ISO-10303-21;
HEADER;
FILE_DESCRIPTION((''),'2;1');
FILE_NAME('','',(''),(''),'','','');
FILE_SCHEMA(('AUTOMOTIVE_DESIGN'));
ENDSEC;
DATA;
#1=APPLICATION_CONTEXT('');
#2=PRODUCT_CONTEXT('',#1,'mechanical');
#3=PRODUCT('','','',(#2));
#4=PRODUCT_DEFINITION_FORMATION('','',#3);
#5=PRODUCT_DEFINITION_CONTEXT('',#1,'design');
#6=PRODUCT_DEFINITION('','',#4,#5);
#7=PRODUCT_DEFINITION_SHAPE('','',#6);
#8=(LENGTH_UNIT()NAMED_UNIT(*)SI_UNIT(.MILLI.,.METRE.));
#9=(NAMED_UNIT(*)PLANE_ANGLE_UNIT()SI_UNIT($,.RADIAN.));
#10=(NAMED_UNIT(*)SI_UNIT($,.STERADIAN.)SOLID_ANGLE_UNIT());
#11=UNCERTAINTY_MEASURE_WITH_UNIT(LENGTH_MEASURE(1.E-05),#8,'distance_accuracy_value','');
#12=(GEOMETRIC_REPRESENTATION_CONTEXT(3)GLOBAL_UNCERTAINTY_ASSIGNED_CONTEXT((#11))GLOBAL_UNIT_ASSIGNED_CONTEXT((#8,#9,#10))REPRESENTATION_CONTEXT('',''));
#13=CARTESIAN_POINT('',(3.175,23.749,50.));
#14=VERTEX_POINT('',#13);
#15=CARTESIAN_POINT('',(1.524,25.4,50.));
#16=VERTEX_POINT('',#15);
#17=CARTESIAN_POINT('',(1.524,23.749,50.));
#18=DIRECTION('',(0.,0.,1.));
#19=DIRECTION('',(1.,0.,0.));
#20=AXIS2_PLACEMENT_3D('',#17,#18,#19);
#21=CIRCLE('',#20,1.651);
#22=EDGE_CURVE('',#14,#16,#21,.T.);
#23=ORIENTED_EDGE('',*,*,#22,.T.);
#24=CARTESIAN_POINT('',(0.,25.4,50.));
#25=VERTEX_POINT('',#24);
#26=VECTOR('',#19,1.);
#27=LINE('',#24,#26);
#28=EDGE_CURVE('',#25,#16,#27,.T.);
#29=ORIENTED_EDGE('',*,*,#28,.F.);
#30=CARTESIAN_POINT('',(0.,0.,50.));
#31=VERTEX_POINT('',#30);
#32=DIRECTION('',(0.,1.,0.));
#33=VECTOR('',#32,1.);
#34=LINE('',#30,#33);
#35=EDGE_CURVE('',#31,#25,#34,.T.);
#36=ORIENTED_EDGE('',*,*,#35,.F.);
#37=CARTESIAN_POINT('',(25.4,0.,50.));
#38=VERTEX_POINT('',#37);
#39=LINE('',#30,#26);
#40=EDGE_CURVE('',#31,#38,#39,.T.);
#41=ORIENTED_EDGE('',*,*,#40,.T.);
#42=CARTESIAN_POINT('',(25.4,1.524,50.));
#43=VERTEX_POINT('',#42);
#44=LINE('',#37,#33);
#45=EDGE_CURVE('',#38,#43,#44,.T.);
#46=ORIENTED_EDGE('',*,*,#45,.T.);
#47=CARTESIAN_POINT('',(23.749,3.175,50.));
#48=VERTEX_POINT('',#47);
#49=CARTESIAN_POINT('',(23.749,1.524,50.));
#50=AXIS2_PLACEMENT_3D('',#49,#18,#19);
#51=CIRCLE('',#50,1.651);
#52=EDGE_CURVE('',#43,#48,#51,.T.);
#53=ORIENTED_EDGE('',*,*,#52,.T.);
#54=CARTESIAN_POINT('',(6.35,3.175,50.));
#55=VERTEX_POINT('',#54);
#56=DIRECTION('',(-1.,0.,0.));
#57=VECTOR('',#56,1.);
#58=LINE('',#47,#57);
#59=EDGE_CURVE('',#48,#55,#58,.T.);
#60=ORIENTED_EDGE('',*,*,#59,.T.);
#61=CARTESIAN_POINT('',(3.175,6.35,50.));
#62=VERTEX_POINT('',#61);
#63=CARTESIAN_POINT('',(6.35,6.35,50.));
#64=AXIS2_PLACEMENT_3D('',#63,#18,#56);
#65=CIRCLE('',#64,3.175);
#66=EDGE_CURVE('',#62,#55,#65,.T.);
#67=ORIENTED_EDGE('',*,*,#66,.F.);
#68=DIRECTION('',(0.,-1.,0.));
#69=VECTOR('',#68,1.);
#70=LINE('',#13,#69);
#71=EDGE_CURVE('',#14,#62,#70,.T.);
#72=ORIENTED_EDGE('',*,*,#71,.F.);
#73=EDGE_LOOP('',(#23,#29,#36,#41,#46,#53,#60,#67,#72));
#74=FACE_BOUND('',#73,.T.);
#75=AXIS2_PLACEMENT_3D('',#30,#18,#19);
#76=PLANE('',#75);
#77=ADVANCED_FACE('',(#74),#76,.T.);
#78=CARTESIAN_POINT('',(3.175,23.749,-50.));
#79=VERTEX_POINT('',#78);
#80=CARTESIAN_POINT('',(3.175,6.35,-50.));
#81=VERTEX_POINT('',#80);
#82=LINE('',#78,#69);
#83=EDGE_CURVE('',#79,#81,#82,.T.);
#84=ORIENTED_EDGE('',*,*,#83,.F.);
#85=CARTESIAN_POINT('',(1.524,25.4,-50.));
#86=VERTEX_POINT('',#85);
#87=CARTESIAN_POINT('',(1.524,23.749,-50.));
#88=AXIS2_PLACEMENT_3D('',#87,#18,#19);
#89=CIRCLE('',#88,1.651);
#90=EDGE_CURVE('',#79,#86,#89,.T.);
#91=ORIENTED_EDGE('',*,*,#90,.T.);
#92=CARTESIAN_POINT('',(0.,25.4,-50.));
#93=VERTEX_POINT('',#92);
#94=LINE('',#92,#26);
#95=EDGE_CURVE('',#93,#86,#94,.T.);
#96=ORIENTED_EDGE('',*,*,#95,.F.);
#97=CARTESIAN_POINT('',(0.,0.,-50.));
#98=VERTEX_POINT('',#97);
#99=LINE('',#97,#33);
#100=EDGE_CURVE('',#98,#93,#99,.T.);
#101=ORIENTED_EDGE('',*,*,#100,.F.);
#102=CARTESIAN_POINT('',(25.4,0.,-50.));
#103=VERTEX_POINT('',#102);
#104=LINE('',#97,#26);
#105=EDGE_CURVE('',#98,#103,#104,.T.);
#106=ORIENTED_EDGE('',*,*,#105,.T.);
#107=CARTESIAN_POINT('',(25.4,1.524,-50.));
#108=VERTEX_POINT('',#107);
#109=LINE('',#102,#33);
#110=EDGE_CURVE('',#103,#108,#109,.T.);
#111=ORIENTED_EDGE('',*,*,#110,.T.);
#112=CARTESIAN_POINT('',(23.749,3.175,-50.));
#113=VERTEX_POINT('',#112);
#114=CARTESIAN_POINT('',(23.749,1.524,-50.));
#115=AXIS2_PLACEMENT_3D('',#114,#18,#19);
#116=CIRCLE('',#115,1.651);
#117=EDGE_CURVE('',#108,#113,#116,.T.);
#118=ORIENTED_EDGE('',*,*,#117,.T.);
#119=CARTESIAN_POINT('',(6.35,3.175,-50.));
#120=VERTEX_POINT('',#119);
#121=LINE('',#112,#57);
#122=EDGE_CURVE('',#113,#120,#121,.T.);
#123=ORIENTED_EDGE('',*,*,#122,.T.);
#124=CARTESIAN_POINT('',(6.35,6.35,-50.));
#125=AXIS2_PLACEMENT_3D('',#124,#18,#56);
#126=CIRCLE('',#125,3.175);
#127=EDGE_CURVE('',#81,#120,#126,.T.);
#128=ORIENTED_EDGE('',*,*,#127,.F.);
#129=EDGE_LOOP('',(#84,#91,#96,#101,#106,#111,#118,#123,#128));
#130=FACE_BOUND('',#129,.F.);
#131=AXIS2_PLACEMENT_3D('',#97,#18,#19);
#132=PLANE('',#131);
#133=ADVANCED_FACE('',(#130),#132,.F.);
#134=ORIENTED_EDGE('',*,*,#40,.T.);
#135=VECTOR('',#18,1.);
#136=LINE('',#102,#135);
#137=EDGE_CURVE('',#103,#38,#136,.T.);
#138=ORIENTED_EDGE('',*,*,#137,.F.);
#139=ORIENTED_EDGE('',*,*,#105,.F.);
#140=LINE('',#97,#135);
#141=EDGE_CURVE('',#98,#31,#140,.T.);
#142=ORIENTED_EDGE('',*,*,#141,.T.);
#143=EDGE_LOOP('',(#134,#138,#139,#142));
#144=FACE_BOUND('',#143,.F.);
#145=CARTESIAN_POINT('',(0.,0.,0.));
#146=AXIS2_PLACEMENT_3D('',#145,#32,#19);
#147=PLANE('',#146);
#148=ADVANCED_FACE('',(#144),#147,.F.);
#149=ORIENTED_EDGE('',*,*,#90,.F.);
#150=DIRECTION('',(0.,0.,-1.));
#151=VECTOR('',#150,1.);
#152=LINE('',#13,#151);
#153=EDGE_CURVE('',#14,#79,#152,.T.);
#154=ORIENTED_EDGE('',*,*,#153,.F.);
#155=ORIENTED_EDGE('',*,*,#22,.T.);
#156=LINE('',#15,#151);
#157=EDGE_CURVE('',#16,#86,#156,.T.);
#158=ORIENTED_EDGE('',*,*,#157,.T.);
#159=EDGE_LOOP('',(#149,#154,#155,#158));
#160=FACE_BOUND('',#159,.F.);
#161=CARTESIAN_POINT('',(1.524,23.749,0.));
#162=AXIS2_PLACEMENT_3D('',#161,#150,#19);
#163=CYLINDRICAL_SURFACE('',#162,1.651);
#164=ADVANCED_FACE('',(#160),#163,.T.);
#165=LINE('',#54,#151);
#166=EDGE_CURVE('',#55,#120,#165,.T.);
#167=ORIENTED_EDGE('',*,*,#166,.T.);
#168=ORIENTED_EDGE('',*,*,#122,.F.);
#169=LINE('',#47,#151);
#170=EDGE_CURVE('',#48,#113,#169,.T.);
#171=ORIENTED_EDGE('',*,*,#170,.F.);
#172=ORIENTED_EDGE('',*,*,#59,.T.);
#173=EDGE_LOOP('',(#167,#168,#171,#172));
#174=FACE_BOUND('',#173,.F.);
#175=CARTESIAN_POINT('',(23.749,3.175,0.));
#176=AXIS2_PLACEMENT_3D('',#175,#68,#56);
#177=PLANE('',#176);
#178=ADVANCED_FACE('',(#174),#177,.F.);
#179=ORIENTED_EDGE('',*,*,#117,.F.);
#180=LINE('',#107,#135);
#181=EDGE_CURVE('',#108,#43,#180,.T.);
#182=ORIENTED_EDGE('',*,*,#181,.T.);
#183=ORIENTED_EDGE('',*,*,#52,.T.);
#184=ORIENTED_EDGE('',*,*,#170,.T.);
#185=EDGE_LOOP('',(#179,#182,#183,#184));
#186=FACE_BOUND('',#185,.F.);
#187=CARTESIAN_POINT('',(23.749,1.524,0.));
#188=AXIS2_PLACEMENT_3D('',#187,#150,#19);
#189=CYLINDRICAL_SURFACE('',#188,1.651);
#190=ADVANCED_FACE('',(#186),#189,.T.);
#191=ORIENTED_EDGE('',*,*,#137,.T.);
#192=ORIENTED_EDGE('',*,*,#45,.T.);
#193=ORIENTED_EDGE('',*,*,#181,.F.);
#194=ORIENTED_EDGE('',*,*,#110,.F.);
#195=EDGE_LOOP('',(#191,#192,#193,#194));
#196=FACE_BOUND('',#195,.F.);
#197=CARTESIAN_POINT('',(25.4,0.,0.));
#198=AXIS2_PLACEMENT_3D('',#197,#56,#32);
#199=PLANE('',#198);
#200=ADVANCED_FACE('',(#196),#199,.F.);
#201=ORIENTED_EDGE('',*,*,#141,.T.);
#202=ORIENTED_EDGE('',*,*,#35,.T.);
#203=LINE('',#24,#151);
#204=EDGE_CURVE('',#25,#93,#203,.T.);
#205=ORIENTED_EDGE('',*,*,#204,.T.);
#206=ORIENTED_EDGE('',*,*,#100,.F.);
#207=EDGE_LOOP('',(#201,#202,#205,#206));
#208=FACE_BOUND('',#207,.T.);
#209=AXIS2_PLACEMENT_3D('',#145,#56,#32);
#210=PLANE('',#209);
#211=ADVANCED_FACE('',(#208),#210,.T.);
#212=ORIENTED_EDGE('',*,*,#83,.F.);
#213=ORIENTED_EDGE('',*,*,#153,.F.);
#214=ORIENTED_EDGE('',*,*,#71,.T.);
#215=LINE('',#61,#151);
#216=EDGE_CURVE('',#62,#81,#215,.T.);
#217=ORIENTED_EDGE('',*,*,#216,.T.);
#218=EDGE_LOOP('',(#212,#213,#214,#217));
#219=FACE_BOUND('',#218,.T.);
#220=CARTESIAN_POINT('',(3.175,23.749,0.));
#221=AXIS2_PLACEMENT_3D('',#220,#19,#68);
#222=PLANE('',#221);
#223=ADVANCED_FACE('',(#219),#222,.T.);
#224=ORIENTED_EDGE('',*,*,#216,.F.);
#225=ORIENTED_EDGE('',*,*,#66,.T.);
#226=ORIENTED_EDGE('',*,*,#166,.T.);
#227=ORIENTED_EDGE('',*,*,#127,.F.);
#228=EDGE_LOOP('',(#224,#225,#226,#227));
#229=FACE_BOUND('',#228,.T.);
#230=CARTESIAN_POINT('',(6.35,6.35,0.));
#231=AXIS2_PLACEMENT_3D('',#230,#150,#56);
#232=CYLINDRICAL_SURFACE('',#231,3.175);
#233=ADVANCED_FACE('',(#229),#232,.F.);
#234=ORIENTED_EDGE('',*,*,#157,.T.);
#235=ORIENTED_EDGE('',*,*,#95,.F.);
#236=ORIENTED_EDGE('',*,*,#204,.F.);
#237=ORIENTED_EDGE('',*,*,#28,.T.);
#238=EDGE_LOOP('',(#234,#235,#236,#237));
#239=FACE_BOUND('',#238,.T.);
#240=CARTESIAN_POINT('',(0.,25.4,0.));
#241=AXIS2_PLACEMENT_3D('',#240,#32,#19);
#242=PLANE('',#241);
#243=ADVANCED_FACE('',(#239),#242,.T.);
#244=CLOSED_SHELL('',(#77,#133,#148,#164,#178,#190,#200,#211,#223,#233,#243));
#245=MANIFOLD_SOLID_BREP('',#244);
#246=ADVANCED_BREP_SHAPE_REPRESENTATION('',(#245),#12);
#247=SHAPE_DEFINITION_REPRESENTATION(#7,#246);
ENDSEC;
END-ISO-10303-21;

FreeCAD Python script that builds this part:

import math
import FreeCAD as App
import Part
import Sketcher

V = App.Vector
Q = App.Units.Quantity

doc = App.newDocument("Part")
body = doc.addObject("PartDesign::Body", "Body")

# Sketch on XY plane
sketch1 = body.newObject("Sketcher::SketchObject", "Sketch")
sketch1.AttachmentSupport = (doc.getObject("XY_Plane"), [""])
sketch1.MapMode = "FlatFace"
sketch1.addGeometry([
    Part.LineSegment(V(0, 25.4, 0), V(0, 0, 0)),  # 0
    Part.LineSegment(V(0, 0, 0), V(25.4, 0, 0)),  # 1
    Part.LineSegment(V(25.4, 0, 0), V(25.4, 1.5, 0)),  # 2
    Part.ArcOfCircle(Part.Circle(V(23.7, 1.5, 0), V(0, 0, 1), 1.7), math.radians(0), math.radians(90)),  # 3
    Part.LineSegment(V(23.7, 3.2, 0), V(6.3, 3.2, 0)),  # 4
    Part.ArcOfCircle(Part.Circle(V(6.3, 6.3, 0), V(0, 0, 1), 3.2), math.radians(180), math.radians(270)),  # 5
    Part.LineSegment(V(3.2, 6.3, 0), V(3.2, 23.7, 0)),  # 6
    Part.ArcOfCircle(Part.Circle(V(1.5, 23.7, 0), V(0, 0, 1), 1.7), math.radians(0), math.radians(90)),  # 7
    Part.LineSegment(V(1.5, 25.4, 0), V(0, 25.4, 0)),  # 8
], False)
sketch1.addConstraint([
    Sketcher.Constraint("Coincident", 0, 2, 1, 1),
    Sketcher.Constraint("Coincident", 1, 2, 2, 1),
    Sketcher.Constraint("Tangent", 2, 2, 3, 1),
    Sketcher.Constraint("Tangent", 3, 2, 4, 1),
    Sketcher.Constraint("Tangent", 4, 2, 5, 2),
    Sketcher.Constraint("Tangent", 5, 1, 6, 1),
    Sketcher.Constraint("Tangent", 6, 2, 7, 1),
    Sketcher.Constraint("Tangent", 7, 2, 8, 1),
    Sketcher.Constraint("Coincident", 8, 2, 0, 1),
    Sketcher.Constraint("Vertical", 0),
    Sketcher.Constraint("Horizontal", 1),
    Sketcher.Constraint("Vertical", 2),
    Sketcher.Constraint("Horizontal", 4),
    Sketcher.Constraint("Vertical", 6),
    Sketcher.Constraint("Horizontal", 8),
    Sketcher.Constraint("Coincident", 0, 2, -1, 1),
    Sketcher.Constraint("Equal", 3, 7),
    Sketcher.Constraint("Equal", 1, 0),
    Sketcher.Constraint("Equal", 8, 2),
    Sketcher.Constraint("DistanceX", 1, 1, 1, 2, Q("1 in")),
    Sketcher.Constraint("Radius", 3, Q("0.065 in")),
    Sketcher.Constraint("Radius", 5, Q("0.125 in")),
    Sketcher.Constraint("DistanceY", -1, 1, 3, 2, Q("0.125 in")),
])
pad1 = body.newObject("PartDesign::Pad", "Pad")
pad1.Profile = sketch1
pad1.Length = Q("3.9370079 in")
pad1.Midplane = True

doc.recompute()
